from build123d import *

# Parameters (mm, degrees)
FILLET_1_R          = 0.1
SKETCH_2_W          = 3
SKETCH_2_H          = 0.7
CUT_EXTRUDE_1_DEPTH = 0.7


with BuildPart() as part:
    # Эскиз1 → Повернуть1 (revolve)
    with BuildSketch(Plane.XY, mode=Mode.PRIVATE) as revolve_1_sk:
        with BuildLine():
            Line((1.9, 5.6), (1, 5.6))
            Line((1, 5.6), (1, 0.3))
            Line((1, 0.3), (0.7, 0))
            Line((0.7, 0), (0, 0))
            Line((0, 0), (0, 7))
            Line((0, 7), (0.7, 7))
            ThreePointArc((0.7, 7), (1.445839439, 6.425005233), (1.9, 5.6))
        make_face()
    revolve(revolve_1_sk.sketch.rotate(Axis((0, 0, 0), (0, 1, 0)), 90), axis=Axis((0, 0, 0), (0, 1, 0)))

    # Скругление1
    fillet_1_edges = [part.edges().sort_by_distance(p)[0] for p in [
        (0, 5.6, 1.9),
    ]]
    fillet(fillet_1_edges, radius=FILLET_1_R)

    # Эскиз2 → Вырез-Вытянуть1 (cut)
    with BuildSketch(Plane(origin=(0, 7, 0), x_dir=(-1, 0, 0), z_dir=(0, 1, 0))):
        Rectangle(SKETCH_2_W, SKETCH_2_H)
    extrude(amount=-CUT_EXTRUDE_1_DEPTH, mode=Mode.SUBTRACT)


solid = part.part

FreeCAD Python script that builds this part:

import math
import FreeCAD as App
import Part
import Sketcher
Q = App.Units.Quantity


def edges_at(feature, points):
    """Names of the edges that pass closest to the given points."""
    edges = feature.Shape.Edges
    near = lambda p: min(range(len(edges)), key=lambda i: edges[i].distToShape(Part.Vertex(*p))[0])
    return sorted({f"Edge{near(p) + 1}" for p in points})


def add_polygon(sketch, points):
    """Adds a closed chain of lines whose ends are joined by coincident constraints."""
    first, n = sketch.GeometryCount, len(points)
    for a, b in zip(points, points[1:] + points[:1]):
        sketch.addGeometry(Part.LineSegment(App.Vector(*a, 0), App.Vector(*b, 0)), False)
    for i in range(n):
        sketch.addConstraint(Sketcher.Constraint("Coincident", first + i, 2, first + (i + 1) % n, 1))

doc = App.newDocument("Part")
params = doc.addObject("Spreadsheet::Sheet", "Params")
for row, (alias, value) in enumerate([
    ("sketch1_height", "7 mm"),
    ("sketch1_width", "0.9 mm"),
    ("sketch1_width2", "0.7 mm"),
    ("sketch1_height2", "5.3 mm"),
    ("revolution_angle", "360 deg"),
    ("fillet_radius", "0.1 mm"),
    ("sketch2_width", "3 mm"),
    ("sketch2_height", "0.7 mm"),
    ("pocket1_length", "0.7 mm"),
], start=1):
    params.set(f"A{row}", alias)
    params.set(f"B{row}", "=" + value)
    params.setAlias(f"B{row}", alias)

body = doc.addObject("PartDesign::Body", "Body")

sketch1 = body.newObject("Sketcher::SketchObject", "Sketch")
sketch1.AttachmentSupport = (doc.getObject("XY_Plane"), [""])
sketch1.MapMode = "FlatFace"
sketch1.addGeometry(Part.LineSegment(App.Vector(1, 5.6, 0), App.Vector(1.9, 5.6, 0)), False)
sketch1.addGeometry(Part.ArcOfCircle(Part.Circle(App.Vector(-0.31, 4.92, 0), App.Vector(0, 0, 1), 2.31), math.radians(17), math.radians(64)), False)
sketch1.addGeometry(Part.LineSegment(App.Vector(0.7, 7, 0), App.Vector(0, 7, 0)), False)
sketch1.addGeometry(Part.LineSegment(App.Vector(0, 7, 0), App.Vector(0, 0, 0)), False)
sketch1.addGeometry(Part.LineSegment(App.Vector(0, 0, 0), App.Vector(0.7, 0, 0)), False)
sketch1.addGeometry(Part.LineSegment(App.Vector(0.7, 0, 0), App.Vector(1, 0.3, 0)), False)
sketch1.addGeometry(Part.LineSegment(App.Vector(1, 0.3, 0), App.Vector(1, 5.6, 0)), False)
sketch1.addConstraint(Sketcher.Constraint("Coincident", 0, 2, 1, 1))
sketch1.addConstraint(Sketcher.Constraint("Coincident", 1, 2, 2, 1))
sketch1.addConstraint(Sketcher.Constraint("Coincident", 2, 2, 3, 1))
sketch1.addConstraint(Sketcher.Constraint("Coincident", 3, 2, 4, 1))
sketch1.addConstraint(Sketcher.Constraint("Coincident", 4, 2, 5, 1))
sketch1.addConstraint(Sketcher.Constraint("Coincident", 5, 2, 6, 1))
sketch1.addConstraint(Sketcher.Constraint("Coincident", 6, 2, 0, 1))
sketch1.addConstraint(Sketcher.Constraint("Horizontal", 0))
sketch1.addConstraint(Sketcher.Constraint("Horizontal", 2))
sketch1.addConstraint(Sketcher.Constraint("Vertical", 3))
sketch1.addConstraint(Sketcher.Constraint("Horizontal", 4))
sketch1.addConstraint(Sketcher.Constraint("Vertical", 6))
sketch1.addConstraint(Sketcher.Constraint("Coincident", 3, 2, -1, 1))
sketch1.addConstraint(Sketcher.Constraint("Vertical", 1, 2, 4, 2))
sketch1.addConstraint(Sketcher.Constraint("DistanceY", 3, 2, 3, 1, 7.0))
sketch1.addConstraint(Sketcher.Constraint("Angle", 5, Q("45 deg")))
sketch1.addConstraint(Sketcher.Constraint("DistanceX", 0, 1, 0, 2, 0.9))
sketch1.addConstraint(Sketcher.Constraint("DistanceX", 2, 2, 2, 1, 0.7))
sketch1.addConstraint(Sketcher.Constraint("DistanceY", 6, 1, 6, 2, 5.3))
sketch1.addConstraint(Sketcher.Constraint("DistanceX", -1, 1, 5, 2, 1.0))
sketch1.addConstraint(Sketcher.Constraint("Radius", 1, 2.308639))
sketch1.setExpression("Constraints[14]", "Params.sketch1_height")
sketch1.setExpression("Constraints[16]", "Params.sketch1_width")
sketch1.setExpression("Constraints[17]", "Params.sketch1_width2")
sketch1.setExpression("Constraints[18]", "Params.sketch1_height2")
revolution = body.newObject("PartDesign::Revolution", "Revolution")
revolution.Profile = sketch1
revolution.ReferenceAxis = (sketch1, ["V_Axis"])
revolution.setExpression("Angle", "Params.revolution_angle")
doc.recompute()

fillet = body.newObject("PartDesign::Fillet", "Fillet")
fillet.Base = (revolution, edges_at(revolution, [(0, 5.6, 1.9)]))
fillet.setExpression("Radius", "Params.fillet_radius")

sketch2 = body.newObject("Sketcher::SketchObject", "Sketch001")
sketch2.AttachmentSupport = (doc.getObject("XZ_Plane"), [""])
sketch2.MapMode = "FlatFace"
sketch2.AttachmentOffset = App.Placement(App.Vector(0, 0, -7), App.Rotation())
add_polygon(sketch2, [(1.5, 0.3), (1.5, -0.3), (-1.5, -0.3), (-1.5, 0.3)])
sketch2.addConstraint(Sketcher.Constraint("Vertical", 0))
sketch2.addConstraint(Sketcher.Constraint("Horizontal", 1))
sketch2.addConstraint(Sketcher.Constraint("Vertical", 2))
sketch2.addConstraint(Sketcher.Constraint("Horizontal", 3))
sketch2.addConstraint(Sketcher.Constraint("Symmetric", 0, 2, 2, 2, -1, 1))
sketch2.addConstraint(Sketcher.Constraint("DistanceX", 1, 2, 1, 1, 3.0))
sketch2.addConstraint(Sketcher.Constraint("DistanceY", 0, 2, 0, 1, 0.7))
sketch2.setExpression("Constraints[9]", "Params.sketch2_width")
sketch2.setExpression("Constraints[10]", "Params.sketch2_height")
pocket1 = body.newObject("PartDesign::Pocket", "Pocket")
pocket1.Profile = sketch2
pocket1.setExpression("Length", "Params.pocket1_length")
pocket1.Reversed = True

doc.recompute()
